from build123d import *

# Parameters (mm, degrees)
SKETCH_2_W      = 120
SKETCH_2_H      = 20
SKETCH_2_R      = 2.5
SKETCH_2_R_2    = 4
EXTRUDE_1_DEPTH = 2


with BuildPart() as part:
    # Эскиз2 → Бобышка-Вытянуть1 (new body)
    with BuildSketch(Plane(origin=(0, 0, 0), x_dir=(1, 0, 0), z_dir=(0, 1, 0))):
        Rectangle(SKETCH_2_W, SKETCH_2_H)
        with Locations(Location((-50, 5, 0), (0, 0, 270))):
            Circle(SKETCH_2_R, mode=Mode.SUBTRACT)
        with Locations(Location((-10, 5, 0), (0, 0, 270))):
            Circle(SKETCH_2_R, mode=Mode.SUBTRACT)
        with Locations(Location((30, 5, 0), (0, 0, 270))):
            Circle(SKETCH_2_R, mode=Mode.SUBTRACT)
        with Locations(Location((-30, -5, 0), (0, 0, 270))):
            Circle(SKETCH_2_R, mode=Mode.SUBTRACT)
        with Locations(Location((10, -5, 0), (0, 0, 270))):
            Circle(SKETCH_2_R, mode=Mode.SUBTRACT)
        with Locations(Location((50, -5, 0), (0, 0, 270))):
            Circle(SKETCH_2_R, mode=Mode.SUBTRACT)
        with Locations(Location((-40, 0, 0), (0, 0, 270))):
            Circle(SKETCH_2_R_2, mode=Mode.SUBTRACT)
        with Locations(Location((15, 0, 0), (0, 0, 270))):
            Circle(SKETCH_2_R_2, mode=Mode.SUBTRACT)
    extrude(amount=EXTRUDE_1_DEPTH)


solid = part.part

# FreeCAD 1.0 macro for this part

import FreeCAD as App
import Part
import Sketcher
Q = App.Units.Quantity


def add_polygon(sketch, points):
    """Adds a closed chain of lines whose ends are joined by coincident constraints."""
    first, n = sketch.GeometryCount, len(points)
    for a, b in zip(points, points[1:] + points[:1]):
        sketch.addGeometry(Part.LineSegment(App.Vector(*a, 0), App.Vector(*b, 0)), False)
    for i in range(n):
        sketch.addConstraint(Sketcher.Constraint("Coincident", first + i, 2, first + (i + 1) % n, 1))

doc = App.newDocument("Part")
body = doc.addObject("PartDesign::Body", "Body")

# Sketch on XZ plane
sketch1 = body.newObject("Sketcher::SketchObject", "Sketch")
sketch1.AttachmentSupport = (doc.getObject("XZ_Plane"), [""])
sketch1.MapMode = "FlatFace"
add_polygon(sketch1, [(-60, -10), (-60, 10), (60, 10), (60, -10)])  # lines 0-3
sketch1.addGeometry(Part.Circle(App.Vector(-30, 5, 0), App.Vector(0, 0, 1), 2.5), False)  # 4
sketch1.addGeometry(Part.Circle(App.Vector(10, 5, 0), App.Vector(0, 0, 1), 2.5), False)  # 5
sketch1.addGeometry(Part.Circle(App.Vector(50, 5, 0), App.Vector(0, 0, 1), 2.5), False)  # 6
sketch1.addGeometry(Part.Circle(App.Vector(-40, 0, 0), App.Vector(0, 0, 1), 4), False)  # 7
sketch1.addGeometry(Part.Circle(App.Vector(-50, -5, 0), App.Vector(0, 0, 1), 2.5), False)  # 8
sketch1.addGeometry(Part.Circle(App.Vector(-10, -5, 0), App.Vector(0, 0, 1), 2.5), False)  # 9
sketch1.addGeometry(Part.Circle(App.Vector(15, 0, 0), App.Vector(0, 0, 1), 4), False)  # 10
sketch1.addGeometry(Part.Circle(App.Vector(30, -5, 0), App.Vector(0, 0, 1), 2.5), False)  # 11
sketch1.addConstraint([
    Sketcher.Constraint("Vertical", 0),
    Sketcher.Constraint("Horizontal", 1),
    Sketcher.Constraint("Vertical", 2),
    Sketcher.Constraint("Horizontal", 3),
    Sketcher.Constraint("Equal", 4, 5),
    Sketcher.Constraint("Equal", 5, 6),
    Sketcher.Constraint("Equal", 6, 8),
    Sketcher.Constraint("Equal", 8, 9),
    Sketcher.Constraint("Equal", 7, 10),
    Sketcher.Constraint("Equal", 9, 11),
    Sketcher.Constraint("Symmetric", 6, 3, 8, 3, -1, 1),
    Sketcher.Constraint("Symmetric", 5, 3, 9, 3, -1, 1),
    Sketcher.Constraint("Symmetric", 4, 3, 11, 3, -1, 1),
    Sketcher.Constraint("Symmetric", 0, 2, 2, 2, -1, 1),
    Sketcher.Constraint("PointOnObject", 7, 3, -1),
    Sketcher.Constraint("PointOnObject", 10, 3, -1),
    Sketcher.Constraint("Horizontal", 4, 3, 5, 3),
    Sketcher.Constraint("Horizontal", 5, 3, 6, 3),
    Sketcher.Constraint("Diameter", 4, Q("5 mm")),
    Sketcher.Constraint("Diameter", 7, Q("8 mm")),
    Sketcher.Constraint("DistanceX", 1, 1, 1, 2, Q("120 mm")),
    Sketcher.Constraint("DistanceY", 0, 1, 0, 2, Q("20 mm")),
    Sketcher.Constraint("DistanceX", 4, 3, -1, 1, Q("30 mm")),
    Sketcher.Constraint("DistanceY", -1, 1, 4, 3, Q("5 mm")),
    Sketcher.Constraint("DistanceX", -1, 1, 5, 3, Q("10 mm")),
    Sketcher.Constraint("DistanceX", -1, 1, 6, 3, Q("50 mm")),
    Sketcher.Constraint("DistanceX", 7, 3, -1, 1, Q("40 mm")),
    Sketcher.Constraint("DistanceX", -1, 1, 10, 3, Q("15 mm")),
])
pad1 = body.newObject("PartDesign::Pad", "Pad")
pad1.Profile = sketch1
pad1.Length = 2
pad1.Reversed = True

doc.recompute()
